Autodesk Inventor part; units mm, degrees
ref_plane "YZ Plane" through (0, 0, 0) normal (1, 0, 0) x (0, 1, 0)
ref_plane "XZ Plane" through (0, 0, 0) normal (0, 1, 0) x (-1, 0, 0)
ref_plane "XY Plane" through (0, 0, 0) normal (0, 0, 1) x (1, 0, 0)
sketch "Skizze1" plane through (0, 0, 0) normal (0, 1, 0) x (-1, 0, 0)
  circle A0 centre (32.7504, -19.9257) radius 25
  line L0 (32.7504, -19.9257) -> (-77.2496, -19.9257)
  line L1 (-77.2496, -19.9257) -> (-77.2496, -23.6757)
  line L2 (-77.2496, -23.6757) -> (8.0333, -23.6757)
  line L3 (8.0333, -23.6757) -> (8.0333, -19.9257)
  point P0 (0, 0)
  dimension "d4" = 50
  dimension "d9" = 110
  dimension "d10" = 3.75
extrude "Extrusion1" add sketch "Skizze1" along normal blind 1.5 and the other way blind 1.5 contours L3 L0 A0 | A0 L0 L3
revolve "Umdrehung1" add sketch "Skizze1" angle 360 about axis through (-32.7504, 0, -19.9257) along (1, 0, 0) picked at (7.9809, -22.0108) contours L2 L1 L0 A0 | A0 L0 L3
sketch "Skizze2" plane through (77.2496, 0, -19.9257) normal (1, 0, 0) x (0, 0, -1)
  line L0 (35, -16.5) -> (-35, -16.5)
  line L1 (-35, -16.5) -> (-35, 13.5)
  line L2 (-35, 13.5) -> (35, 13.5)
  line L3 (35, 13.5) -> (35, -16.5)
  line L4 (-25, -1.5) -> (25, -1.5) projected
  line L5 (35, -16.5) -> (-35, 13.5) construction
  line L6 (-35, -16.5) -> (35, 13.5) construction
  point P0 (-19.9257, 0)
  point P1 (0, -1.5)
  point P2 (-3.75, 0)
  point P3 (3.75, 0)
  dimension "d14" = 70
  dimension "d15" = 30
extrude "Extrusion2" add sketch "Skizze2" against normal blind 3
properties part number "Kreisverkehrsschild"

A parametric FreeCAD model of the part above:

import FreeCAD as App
import Part
import Sketcher

V = App.Vector
Q = App.Units.Quantity

doc = App.newDocument("Part")
body = doc.addObject("PartDesign::Body", "Body")

# Sketch on XZ plane
sketch1 = body.newObject("Sketcher::SketchObject", "Sketch")
sketch1.AttachmentSupport = (doc.getObject("XZ_Plane"), [""])
sketch1.MapMode = "FlatFace"
sketch1.addGeometry(Part.Circle(V(-33, -20, 0), V(0, 0, 1), 25), False)
sketch1.addConstraint([
    Sketcher.Constraint("Diameter", 0, Q("50 mm")),
    Sketcher.Constraint("DistanceX", 0, 3, -1, 1, Q("32.7504 mm")),
    Sketcher.Constraint("DistanceY", 0, 3, -1, 1, Q("19.9257 mm")),
])
pad1 = body.newObject("PartDesign::Pad", "Pad")
pad1.Profile = sketch1
pad1.Type = "TwoLengths"
pad1.Length = 1.5
pad1.Length2 = 1.5
pad1.Reversed = True

# Sketch on XZ plane
sketch2 = body.newObject("Sketcher::SketchObject", "Sketch001")
sketch2.AttachmentSupport = (doc.getObject("XZ_Plane"), [""])
sketch2.MapMode = "FlatFace"
sketch2.addGeometry([
    Part.LineSegment(V(77.2, -23.7, 0), V(-8, -23.7, 0)),
    Part.LineSegment(V(-8, -23.7, 0), V(-8, -19.9, 0)),
    Part.LineSegment(V(-8, -19.9, 0), V(77.2, -19.9, 0)),
    Part.LineSegment(V(77.2, -19.9, 0), V(77.2, -23.7, 0)),
], False)
sketch2.addGeometry(Part.LineSegment(V(-8, -19.9, 0), V(77.2, -19.9, 0)), True)  # axis
sketch2.addConstraint([
    Sketcher.Constraint("Coincident", 0, 2, 1, 1),
    Sketcher.Constraint("Coincident", 1, 2, 2, 1),
    Sketcher.Constraint("Coincident", 2, 2, 3, 1),
    Sketcher.Constraint("Coincident", 3, 2, 0, 1),
    Sketcher.Constraint("Horizontal", 0),
    Sketcher.Constraint("Vertical", 1),
    Sketcher.Constraint("Horizontal", 2),
    Sketcher.Constraint("Vertical", 3),
    Sketcher.Constraint("Horizontal", 4),
    Sketcher.Constraint("Coincident", 4, 1, 1, 2),
    Sketcher.Constraint("Vertical", 3, 2, 4, 2),
    Sketcher.Constraint("DistanceY", 1, 1, 1, 2, Q("3.75 mm")),
    Sketcher.Constraint("DistanceX", 0, 2, 0, 1, Q("85.283 mm")),
    Sketcher.Constraint("DistanceX", 0, 2, -1, 1, Q("8.0333 mm")),
    Sketcher.Constraint("DistanceY", 0, 2, -1, 1, Q("23.6757 mm")),
])
revolution = body.newObject("PartDesign::Revolution", "Revolution")
revolution.Profile = sketch2
revolution.ReferenceAxis = (sketch2, ["Axis0"])
revolution.Angle = 360

# Sketch on YZ plane
sketch3 = body.newObject("Sketcher::SketchObject", "Sketch002")
sketch3.AttachmentSupport = (doc.getObject("YZ_Plane"), [""])
sketch3.MapMode = "FlatFace"
sketch3.AttachmentOffset = App.Placement(V(0, 0, 77.2496), App.Rotation())
sketch3.addGeometry([
    Part.LineSegment(V(-16, 15, 0), V(-16, -55, 0)),
    Part.LineSegment(V(-16, -55, 0), V(14, -55, 0)),
    Part.LineSegment(V(14, -55, 0), V(14, 15, 0)),
    Part.LineSegment(V(14, 15, 0), V(-16, 15, 0)),
], False)
sketch3.addConstraint([
    Sketcher.Constraint("Coincident", 0, 2, 1, 1),
    Sketcher.Constraint("Coincident", 1, 2, 2, 1),
    Sketcher.Constraint("Coincident", 2, 2, 3, 1),
    Sketcher.Constraint("Coincident", 3, 2, 0, 1),
    Sketcher.Constraint("Vertical", 0),
    Sketcher.Constraint("Horizontal", 1),
    Sketcher.Constraint("Vertical", 2),
    Sketcher.Constraint("Horizontal", 3),
    Sketcher.Constraint("DistanceX", 1, 1, 1, 2, Q("30 mm")),
    Sketcher.Constraint("DistanceY", 0, 2, 0, 1, Q("70 mm")),
    Sketcher.Constraint("DistanceX", 0, 2, -1, 1, Q("16.5 mm")),
    Sketcher.Constraint("DistanceY", 0, 2, -1, 1, Q("54.9257 mm")),
])
pad2 = body.newObject("PartDesign::Pad", "Pad001")
pad2.Profile = sketch3
pad2.Length = 3
pad2.Reversed = True

doc.recompute()
